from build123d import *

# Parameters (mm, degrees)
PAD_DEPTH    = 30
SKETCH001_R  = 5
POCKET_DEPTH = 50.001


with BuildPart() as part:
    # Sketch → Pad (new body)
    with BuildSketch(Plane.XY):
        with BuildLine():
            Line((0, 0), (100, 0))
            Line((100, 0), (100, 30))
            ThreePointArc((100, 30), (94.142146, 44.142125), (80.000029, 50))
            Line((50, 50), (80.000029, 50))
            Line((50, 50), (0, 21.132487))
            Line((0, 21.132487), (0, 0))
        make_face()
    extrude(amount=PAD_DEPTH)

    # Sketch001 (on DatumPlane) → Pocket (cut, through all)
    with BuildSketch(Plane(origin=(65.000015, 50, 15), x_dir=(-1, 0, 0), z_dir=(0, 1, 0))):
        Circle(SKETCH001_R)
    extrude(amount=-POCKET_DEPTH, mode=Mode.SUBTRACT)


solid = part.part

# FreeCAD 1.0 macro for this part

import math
import FreeCAD as App
import Part
import Sketcher

V = App.Vector

doc = App.newDocument("Part")
params = doc.addObject("Spreadsheet::Sheet", "Params")
for row, (alias, value) in enumerate([
    ("sketch1_radius", "20 mm"),
    ("sketch1_width", "100 mm"),
    ("sketch1_height", "30 mm"),
    ("pad1_length", "30 mm"),
    ("sketch2_diameter", "10 mm"),
], start=1):
    params.set(f"A{row}", alias)
    params.set(f"B{row}", "=" + value)
    params.setAlias(f"B{row}", alias)

body = doc.addObject("PartDesign::Body", "Body")

sketch1 = body.newObject("Sketcher::SketchObject", "Sketch")
sketch1.AttachmentSupport = (doc.getObject("XY_Plane"), [""])
sketch1.MapMode = "FlatFace"
sketch1.addGeometry(Part.LineSegment(V(0, 0, 0), V(100, 0, 0)), False)
sketch1.addGeometry(Part.LineSegment(V(100, 0, 0), V(100, 30, 0)), False)
sketch1.addGeometry(Part.ArcOfCircle(Part.Circle(V(80, 30, 0), V(0, 0, 1), 20), math.radians(0.000001), math.radians(89.999916)), False)
sketch1.addGeometry(Part.LineSegment(V(80.000029, 50, 0), V(50, 50, 0)), False)
sketch1.addGeometry(Part.LineSegment(V(50, 50, 0), V(0, 21.132487, 0)), False)
sketch1.addGeometry(Part.LineSegment(V(0, 21.132487, 0), V(0, 0, 0)), False)
sketch1.addConstraint(Sketcher.Constraint("Coincident", 0, 2, 1, 1))
sketch1.addConstraint(Sketcher.Constraint("Coincident", 1, 2, 2, 1))
sketch1.addConstraint(Sketcher.Constraint("Coincident", 2, 2, 3, 1))
sketch1.addConstraint(Sketcher.Constraint("Coincident", 3, 2, 4, 1))
sketch1.addConstraint(Sketcher.Constraint("Coincident", 4, 2, 5, 1))
sketch1.addConstraint(Sketcher.Constraint("Coincident", 5, 2, 0, 1))
sketch1.addConstraint(Sketcher.Constraint("Horizontal", 0))
sketch1.addConstraint(Sketcher.Constraint("Vertical", 1))
sketch1.addConstraint(Sketcher.Constraint("Horizontal", 3))
sketch1.addConstraint(Sketcher.Constraint("Vertical", 5))
sketch1.addConstraint(Sketcher.Constraint("Coincident", 5, 2, -1, 1))
sketch1.addConstraint(Sketcher.Constraint("Radius", 2, 20.0))
sketch1.addConstraint(Sketcher.Constraint("DistanceX", 0, 1, 0, 2, 100.0))
sketch1.addConstraint(Sketcher.Constraint("DistanceY", 1, 1, 1, 2, 30.0))
sketch1.addConstraint(Sketcher.Constraint("DistanceY", -1, 1, 2, 3, 30.0))
sketch1.addConstraint(Sketcher.Constraint("DistanceX", -1, 1, 3, 2, 50.0))
sketch1.addConstraint(Sketcher.Constraint("DistanceX", 3, 2, 3, 1, 30.000029))
sketch1.addConstraint(Sketcher.Constraint("DistanceY", 5, 2, 5, 1, 21.132487))
sketch1.setExpression("Constraints[11]", "Params.sketch1_radius")
sketch1.setExpression("Constraints[12]", "Params.sketch1_width")
sketch1.setExpression("Constraints[13]", "Params.sketch1_height")
pad1 = body.newObject("PartDesign::Pad", "Pad")
pad1.Profile = sketch1
pad1.setExpression("Length", "Params.pad1_length")

sketch2 = body.newObject("Sketcher::SketchObject", "Sketch001")
sketch2.AttachmentSupport = (doc.getObject("XZ_Plane"), [""])
sketch2.MapMode = "FlatFace"
sketch2.AttachmentOffset = App.Placement(V(0, 0, -50), App.Rotation())
sketch2.addGeometry(Part.Circle(V(65, 15, 0), V(0, 0, 1), 5), False)
sketch2.addConstraint(Sketcher.Constraint("Diameter", 0, 10.0))
sketch2.addConstraint(Sketcher.Constraint("DistanceY", -1, 1, 0, 3, 15.0))
sketch2.addConstraint(Sketcher.Constraint("DistanceX", -1, 1, 0, 3, 65.000015))
sketch2.setExpression("Constraints[0]", "Params.sketch2_diameter")
pocket1 = body.newObject("PartDesign::Pocket", "Pocket")
pocket1.Profile = sketch2
pocket1.Type = "ThroughAll"
pocket1.Reversed = True

doc.recompute()
